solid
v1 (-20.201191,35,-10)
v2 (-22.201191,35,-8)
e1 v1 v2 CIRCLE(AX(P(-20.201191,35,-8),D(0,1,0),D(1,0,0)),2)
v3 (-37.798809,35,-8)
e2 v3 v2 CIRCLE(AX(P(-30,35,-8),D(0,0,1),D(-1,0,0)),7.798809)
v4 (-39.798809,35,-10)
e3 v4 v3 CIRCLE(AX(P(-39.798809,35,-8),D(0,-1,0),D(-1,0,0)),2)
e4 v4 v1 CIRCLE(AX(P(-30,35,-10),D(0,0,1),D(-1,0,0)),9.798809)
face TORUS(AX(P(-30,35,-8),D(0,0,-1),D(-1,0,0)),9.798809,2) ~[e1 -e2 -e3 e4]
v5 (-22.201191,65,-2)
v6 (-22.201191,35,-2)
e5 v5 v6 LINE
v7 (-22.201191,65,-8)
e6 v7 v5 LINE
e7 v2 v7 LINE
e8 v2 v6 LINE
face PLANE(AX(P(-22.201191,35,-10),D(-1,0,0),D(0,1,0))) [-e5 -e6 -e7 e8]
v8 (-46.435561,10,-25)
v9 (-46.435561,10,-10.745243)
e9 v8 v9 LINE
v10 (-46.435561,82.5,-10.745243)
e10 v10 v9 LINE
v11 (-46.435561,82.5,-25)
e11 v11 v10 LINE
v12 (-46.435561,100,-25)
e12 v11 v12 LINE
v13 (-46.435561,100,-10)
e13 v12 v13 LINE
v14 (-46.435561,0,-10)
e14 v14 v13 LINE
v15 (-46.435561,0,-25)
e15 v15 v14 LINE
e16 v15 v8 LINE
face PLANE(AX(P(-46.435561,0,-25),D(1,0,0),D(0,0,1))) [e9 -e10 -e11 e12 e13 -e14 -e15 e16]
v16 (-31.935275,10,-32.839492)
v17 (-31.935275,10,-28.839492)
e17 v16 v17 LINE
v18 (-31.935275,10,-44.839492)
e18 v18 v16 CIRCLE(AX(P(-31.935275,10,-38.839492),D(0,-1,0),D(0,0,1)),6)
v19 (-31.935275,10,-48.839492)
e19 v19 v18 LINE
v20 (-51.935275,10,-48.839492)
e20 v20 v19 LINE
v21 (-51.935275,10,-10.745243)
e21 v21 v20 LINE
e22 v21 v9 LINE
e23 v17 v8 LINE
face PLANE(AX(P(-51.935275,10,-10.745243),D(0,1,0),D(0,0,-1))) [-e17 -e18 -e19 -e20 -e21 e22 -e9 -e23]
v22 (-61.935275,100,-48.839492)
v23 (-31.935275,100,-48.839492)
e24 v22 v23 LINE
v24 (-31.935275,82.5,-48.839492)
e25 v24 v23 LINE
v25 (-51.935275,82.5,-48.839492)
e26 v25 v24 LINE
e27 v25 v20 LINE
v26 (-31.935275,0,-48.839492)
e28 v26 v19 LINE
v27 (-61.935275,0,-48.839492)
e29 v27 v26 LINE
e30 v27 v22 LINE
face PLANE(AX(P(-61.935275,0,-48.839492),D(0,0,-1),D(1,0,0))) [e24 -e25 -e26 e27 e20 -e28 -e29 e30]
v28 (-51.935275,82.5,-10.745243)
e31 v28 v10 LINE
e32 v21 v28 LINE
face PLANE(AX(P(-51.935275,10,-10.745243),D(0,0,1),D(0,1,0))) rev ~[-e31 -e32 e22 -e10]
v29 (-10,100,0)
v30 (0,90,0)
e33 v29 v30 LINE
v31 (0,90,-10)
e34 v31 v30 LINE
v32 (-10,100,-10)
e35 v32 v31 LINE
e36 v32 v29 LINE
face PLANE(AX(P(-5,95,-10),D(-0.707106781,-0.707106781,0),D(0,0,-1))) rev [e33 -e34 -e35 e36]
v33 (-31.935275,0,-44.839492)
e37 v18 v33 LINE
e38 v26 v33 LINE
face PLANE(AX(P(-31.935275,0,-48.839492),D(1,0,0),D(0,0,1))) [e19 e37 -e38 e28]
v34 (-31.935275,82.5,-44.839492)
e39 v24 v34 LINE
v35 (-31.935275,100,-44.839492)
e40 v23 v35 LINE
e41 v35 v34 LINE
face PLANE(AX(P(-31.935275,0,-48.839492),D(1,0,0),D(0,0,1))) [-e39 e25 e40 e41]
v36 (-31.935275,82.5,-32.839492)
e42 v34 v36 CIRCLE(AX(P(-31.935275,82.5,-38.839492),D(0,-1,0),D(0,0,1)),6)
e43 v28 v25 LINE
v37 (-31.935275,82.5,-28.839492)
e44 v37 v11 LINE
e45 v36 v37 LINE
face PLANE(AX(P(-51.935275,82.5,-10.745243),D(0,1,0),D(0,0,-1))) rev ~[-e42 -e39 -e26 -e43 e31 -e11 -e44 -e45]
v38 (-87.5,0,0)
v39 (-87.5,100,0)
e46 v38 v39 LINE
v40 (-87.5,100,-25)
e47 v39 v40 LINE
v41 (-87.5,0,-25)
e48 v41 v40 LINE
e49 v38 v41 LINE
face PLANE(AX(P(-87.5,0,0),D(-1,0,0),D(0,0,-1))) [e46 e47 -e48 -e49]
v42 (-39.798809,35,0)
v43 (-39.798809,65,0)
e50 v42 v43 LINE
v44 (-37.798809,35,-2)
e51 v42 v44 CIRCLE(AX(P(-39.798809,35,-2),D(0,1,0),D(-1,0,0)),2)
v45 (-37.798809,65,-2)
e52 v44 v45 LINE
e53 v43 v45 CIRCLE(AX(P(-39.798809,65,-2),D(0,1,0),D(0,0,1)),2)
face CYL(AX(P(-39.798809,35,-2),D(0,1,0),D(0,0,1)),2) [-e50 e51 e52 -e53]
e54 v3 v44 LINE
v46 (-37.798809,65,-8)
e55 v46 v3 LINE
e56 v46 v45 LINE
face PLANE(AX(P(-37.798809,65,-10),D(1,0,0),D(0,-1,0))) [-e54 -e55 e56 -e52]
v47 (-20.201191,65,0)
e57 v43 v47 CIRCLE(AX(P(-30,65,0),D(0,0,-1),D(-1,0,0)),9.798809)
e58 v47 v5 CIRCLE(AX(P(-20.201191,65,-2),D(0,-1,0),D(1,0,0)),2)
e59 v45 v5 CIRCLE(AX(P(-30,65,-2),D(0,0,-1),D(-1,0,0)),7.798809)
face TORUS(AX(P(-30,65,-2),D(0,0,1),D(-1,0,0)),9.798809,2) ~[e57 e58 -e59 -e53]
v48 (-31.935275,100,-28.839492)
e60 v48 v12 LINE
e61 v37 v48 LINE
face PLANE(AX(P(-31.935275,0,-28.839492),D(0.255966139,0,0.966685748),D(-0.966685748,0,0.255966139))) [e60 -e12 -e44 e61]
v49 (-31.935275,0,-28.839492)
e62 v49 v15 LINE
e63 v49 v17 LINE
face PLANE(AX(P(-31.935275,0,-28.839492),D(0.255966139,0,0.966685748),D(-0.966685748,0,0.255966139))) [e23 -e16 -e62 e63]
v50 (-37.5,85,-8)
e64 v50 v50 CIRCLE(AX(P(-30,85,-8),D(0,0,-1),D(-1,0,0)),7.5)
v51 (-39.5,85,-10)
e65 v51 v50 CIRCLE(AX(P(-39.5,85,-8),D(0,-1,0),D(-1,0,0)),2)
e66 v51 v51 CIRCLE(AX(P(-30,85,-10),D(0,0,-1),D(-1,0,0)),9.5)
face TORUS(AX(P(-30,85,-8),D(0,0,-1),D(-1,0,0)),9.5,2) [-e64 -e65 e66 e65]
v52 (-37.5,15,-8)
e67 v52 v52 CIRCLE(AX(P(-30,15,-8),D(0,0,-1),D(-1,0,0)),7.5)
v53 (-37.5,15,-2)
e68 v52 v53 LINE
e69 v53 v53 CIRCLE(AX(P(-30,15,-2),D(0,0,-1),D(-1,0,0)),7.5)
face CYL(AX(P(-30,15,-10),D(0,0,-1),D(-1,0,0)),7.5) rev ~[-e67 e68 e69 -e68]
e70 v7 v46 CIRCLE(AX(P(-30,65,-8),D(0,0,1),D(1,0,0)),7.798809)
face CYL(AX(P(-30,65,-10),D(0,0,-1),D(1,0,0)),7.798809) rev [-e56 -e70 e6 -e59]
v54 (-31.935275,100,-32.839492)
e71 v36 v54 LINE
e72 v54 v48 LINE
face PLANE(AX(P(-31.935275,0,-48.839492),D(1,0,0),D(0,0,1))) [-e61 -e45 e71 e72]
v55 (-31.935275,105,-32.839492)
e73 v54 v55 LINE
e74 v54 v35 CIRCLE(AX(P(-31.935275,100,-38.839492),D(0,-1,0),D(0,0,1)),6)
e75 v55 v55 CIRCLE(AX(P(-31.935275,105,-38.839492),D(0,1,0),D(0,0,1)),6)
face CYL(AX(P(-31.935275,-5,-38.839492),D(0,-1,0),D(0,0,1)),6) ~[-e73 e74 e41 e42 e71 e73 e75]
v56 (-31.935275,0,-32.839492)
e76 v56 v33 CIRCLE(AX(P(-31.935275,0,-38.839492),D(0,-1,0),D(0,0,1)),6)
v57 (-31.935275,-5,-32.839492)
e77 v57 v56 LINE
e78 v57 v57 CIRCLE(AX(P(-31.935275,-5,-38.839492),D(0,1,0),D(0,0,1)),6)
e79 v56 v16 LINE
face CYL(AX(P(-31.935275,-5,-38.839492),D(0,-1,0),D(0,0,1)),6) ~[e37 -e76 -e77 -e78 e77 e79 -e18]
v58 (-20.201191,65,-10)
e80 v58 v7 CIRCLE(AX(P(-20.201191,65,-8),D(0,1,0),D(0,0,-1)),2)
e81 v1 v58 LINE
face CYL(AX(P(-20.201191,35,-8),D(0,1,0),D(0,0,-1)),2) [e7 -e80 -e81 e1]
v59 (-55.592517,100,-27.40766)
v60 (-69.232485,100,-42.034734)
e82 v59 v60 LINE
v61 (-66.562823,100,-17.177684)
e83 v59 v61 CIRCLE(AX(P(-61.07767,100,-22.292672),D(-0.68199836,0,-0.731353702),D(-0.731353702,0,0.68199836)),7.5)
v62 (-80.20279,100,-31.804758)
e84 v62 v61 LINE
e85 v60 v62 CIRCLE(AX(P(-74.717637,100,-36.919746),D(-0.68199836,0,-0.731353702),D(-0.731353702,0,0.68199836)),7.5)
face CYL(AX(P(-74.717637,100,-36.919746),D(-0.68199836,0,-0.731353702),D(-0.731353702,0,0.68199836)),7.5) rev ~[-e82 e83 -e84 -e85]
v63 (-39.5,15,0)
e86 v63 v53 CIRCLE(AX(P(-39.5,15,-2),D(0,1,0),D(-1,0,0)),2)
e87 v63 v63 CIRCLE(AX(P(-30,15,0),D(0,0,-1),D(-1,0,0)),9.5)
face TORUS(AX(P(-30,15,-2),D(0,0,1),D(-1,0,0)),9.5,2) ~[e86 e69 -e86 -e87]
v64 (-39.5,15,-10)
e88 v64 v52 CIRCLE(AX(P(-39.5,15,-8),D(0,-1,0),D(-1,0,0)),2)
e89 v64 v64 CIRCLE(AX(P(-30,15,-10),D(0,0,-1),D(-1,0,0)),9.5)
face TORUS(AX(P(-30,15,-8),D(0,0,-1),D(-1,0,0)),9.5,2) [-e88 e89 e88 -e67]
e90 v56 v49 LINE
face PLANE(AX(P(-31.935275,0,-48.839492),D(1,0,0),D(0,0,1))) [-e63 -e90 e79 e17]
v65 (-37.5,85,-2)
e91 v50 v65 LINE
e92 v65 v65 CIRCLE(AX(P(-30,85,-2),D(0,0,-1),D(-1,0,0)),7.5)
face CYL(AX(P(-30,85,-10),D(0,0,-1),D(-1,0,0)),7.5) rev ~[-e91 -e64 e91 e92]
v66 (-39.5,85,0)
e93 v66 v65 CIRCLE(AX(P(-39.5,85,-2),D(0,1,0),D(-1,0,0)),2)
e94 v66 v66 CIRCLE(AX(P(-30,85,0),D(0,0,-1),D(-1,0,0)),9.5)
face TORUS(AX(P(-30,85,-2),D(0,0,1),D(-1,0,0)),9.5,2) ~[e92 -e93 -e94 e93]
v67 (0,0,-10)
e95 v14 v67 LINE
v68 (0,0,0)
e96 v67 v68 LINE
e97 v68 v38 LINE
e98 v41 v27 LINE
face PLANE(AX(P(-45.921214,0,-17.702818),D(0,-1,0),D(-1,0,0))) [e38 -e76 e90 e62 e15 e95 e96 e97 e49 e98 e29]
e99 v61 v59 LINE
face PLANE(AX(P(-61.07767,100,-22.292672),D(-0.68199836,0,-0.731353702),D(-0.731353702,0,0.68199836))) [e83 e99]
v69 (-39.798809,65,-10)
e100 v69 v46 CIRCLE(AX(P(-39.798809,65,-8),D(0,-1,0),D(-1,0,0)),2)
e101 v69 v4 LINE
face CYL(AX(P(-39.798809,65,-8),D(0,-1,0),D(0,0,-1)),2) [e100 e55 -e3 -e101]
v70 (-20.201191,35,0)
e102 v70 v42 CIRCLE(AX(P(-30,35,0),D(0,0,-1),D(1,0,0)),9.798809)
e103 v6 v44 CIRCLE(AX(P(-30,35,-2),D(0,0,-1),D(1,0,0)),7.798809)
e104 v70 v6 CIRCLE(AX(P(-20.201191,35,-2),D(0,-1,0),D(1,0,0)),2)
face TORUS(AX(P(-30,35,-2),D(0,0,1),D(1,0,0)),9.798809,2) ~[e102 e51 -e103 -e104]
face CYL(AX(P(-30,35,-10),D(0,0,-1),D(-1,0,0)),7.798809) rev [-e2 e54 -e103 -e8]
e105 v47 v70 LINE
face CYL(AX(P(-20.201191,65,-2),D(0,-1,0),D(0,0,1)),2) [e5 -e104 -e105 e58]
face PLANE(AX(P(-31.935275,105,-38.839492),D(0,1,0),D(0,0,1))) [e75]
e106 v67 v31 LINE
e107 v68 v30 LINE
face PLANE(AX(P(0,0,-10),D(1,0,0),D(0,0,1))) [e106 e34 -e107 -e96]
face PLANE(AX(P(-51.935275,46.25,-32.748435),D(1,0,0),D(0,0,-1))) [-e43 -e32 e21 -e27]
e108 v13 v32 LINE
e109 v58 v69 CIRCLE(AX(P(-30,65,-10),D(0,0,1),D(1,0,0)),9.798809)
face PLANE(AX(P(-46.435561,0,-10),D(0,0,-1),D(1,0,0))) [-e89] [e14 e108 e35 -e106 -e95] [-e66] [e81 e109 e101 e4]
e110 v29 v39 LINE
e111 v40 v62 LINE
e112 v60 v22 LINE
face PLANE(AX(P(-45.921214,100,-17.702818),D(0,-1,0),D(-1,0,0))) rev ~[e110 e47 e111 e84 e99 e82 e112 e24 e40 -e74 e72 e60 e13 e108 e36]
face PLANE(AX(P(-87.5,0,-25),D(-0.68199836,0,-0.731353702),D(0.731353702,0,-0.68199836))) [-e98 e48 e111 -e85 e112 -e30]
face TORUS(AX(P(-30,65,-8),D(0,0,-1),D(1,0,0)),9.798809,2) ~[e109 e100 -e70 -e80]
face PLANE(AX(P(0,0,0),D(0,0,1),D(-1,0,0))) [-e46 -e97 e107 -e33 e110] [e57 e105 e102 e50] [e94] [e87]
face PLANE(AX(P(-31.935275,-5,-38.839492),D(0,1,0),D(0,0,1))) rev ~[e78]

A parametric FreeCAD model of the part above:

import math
import FreeCAD as App
import Part
import Sketcher

V = App.Vector
Q = App.Units.Quantity


def edges_at(feature, points):
    """Names of the edges that pass closest to the given points."""
    edges = feature.Shape.Edges
    near = lambda p: min(range(len(edges)), key=lambda i: edges[i].distToShape(Part.Vertex(*p))[0])
    return sorted({f"Edge{near(p) + 1}" for p in points})

doc = App.newDocument("Part")
body = doc.addObject("PartDesign::Body", "Body")

sketch1 = body.newObject("Sketcher::SketchObject", "Sketch")
sketch1.AttachmentSupport = (doc.getObject("XZ_Plane"), [""])
sketch1.MapMode = "FlatFace"
sketch1.addGeometry(Part.LineSegment(V(-88, 0, 0), V(0, 0, 0)), False)
sketch1.addGeometry(Part.LineSegment(V(0, 0, 0), V(0, -10, 0)), False)
sketch1.addGeometry(Part.LineSegment(V(0, -10, 0), V(-46, -10, 0)), False)
sketch1.addGeometry(Part.LineSegment(V(-46, -10, 0), V(-46, -25, 0)), False)
sketch1.addGeometry(Part.LineSegment(V(-46, -25, 0), V(-32, -29, 0)), False)
sketch1.addGeometry(Part.LineSegment(V(-32, -29, 0), V(-32, -49, 0)), False)
sketch1.addGeometry(Part.LineSegment(V(-32, -49, 0), V(-62, -49, 0)), False)
sketch1.addGeometry(Part.LineSegment(V(-62, -49, 0), V(-88, -25, 0)), False)
sketch1.addGeometry(Part.LineSegment(V(-88, -25, 0), V(-88, 0, 0)), False)
sketch1.addConstraint(Sketcher.Constraint("Coincident", 0, 2, 1, 1))
sketch1.addConstraint(Sketcher.Constraint("Coincident", 1, 2, 2, 1))
sketch1.addConstraint(Sketcher.Constraint("Coincident", 2, 2, 3, 1))
sketch1.addConstraint(Sketcher.Constraint("Coincident", 3, 2, 4, 1))
sketch1.addConstraint(Sketcher.Constraint("Coincident", 4, 2, 5, 1))
sketch1.addConstraint(Sketcher.Constraint("Coincident", 5, 2, 6, 1))
sketch1.addConstraint(Sketcher.Constraint("Coincident", 6, 2, 7, 1))
sketch1.addConstraint(Sketcher.Constraint("Coincident", 7, 2, 8, 1))
sketch1.addConstraint(Sketcher.Constraint("Coincident", 8, 2, 0, 1))
sketch1.addConstraint(Sketcher.Constraint("Horizontal", 0))
sketch1.addConstraint(Sketcher.Constraint("Vertical", 1))
sketch1.addConstraint(Sketcher.Constraint("Horizontal", 2))
sketch1.addConstraint(Sketcher.Constraint("Vertical", 3))
sketch1.addConstraint(Sketcher.Constraint("Vertical", 5))
sketch1.addConstraint(Sketcher.Constraint("Horizontal", 6))
sketch1.addConstraint(Sketcher.Constraint("Vertical", 8))
sketch1.addConstraint(Sketcher.Constraint("Coincident", 0, 2, -1, 1))
sketch1.addConstraint(Sketcher.Constraint("Horizontal", 3, 2, 7, 2))
sketch1.addConstraint(Sketcher.Constraint("DistanceX", 6, 2, 6, 1, Q("30 mm")))
sketch1.addConstraint(Sketcher.Constraint("DistanceY", 1, 2, 1, 1, Q("10 mm")))
sketch1.addConstraint(Sketcher.Constraint("DistanceY", 3, 2, 3, 1, Q("15 mm")))
sketch1.addConstraint(Sketcher.Constraint("DistanceY", 5, 2, 5, 1, Q("20 mm")))
sketch1.addConstraint(Sketcher.Constraint("Angle", 7, Q("137 deg")))
sketch1.addConstraint(Sketcher.Constraint("Distance", 4, Q("15 mm")))
sketch1.addConstraint(Sketcher.Constraint("DistanceX", 0, 1, 0, 2, Q("87.5 mm")))
sketch1.addConstraint(Sketcher.Constraint("DistanceX", 2, 2, 2, 1, Q("46.435561 mm")))
pad1 = body.newObject("PartDesign::Pad", "Pad")
pad1.Profile = sketch1
pad1.Length = 100
pad1.Reversed = True

sketch2 = body.newObject("Sketcher::SketchObject", "Sketch001")
sketch2.AttachmentSupport = (doc.getObject("XZ_Plane"), [""])
sketch2.MapMode = "FlatFace"
sketch2.AttachmentOffset = App.Placement(V(0, 0, -100), App.Rotation())
sketch2.addGeometry(Part.Circle(V(-32, -39, 0), V(0, 0, 1), 6), False)
sketch2.addConstraint(Sketcher.Constraint("Diameter", 0, Q("12 mm")))
sketch2.addConstraint(Sketcher.Constraint("DistanceX", 0, 3, -1, 1, Q("31.935275 mm")))
sketch2.addConstraint(Sketcher.Constraint("DistanceY", 0, 3, -1, 1, Q("38.839492 mm")))
pad2 = body.newObject("PartDesign::Pad", "Pad001")
pad2.Profile = sketch2
pad2.Type = "TwoLengths"
pad2.Length = 5
pad2.Length2 = 105
pad2.Reversed = True

sketch3 = body.newObject("Sketcher::SketchObject", "Sketch002")
sketch3.AttachmentSupport = (doc.getObject("YZ_Plane"), [""])
sketch3.MapMode = "FlatFace"
sketch3.AttachmentOffset = App.Placement(V(0, 0, -31.935275), App.Rotation())
sketch3.addGeometry(Part.LineSegment(V(82, -11, 0), V(10, -11, 0)), False)
sketch3.addGeometry(Part.LineSegment(V(10, -11, 0), V(10, -55, 0)), False)
sketch3.addGeometry(Part.LineSegment(V(10, -55, 0), V(82, -55, 0)), False)
sketch3.addGeometry(Part.LineSegment(V(82, -55, 0), V(82, -11, 0)), False)
sketch3.addConstraint(Sketcher.Constraint("Coincident", 0, 2, 1, 1))
sketch3.addConstraint(Sketcher.Constraint("Coincident", 1, 2, 2, 1))
sketch3.addConstraint(Sketcher.Constraint("Coincident", 2, 2, 3, 1))
sketch3.addConstraint(Sketcher.Constraint("Coincident", 3, 2, 0, 1))
sketch3.addConstraint(Sketcher.Constraint("Horizontal", 0))
sketch3.addConstraint(Sketcher.Constraint("Vertical", 1))
sketch3.addConstraint(Sketcher.Constraint("Horizontal", 2))
sketch3.addConstraint(Sketcher.Constraint("Vertical", 3))
sketch3.addConstraint(Sketcher.Constraint("DistanceX", 0, 2, 0, 1, Q("72.5 mm")))
sketch3.addConstraint(Sketcher.Constraint("DistanceX", -1, 1, 0, 2, Q("10 mm")))
sketch3.addConstraint(Sketcher.Constraint("DistanceY", 1, 2, 1, 1, Q("44.006383 mm")))
sketch3.addConstraint(Sketcher.Constraint("DistanceY", 0, 2, -1, 1, Q("10.745243 mm")))
pocket1 = body.newObject("PartDesign::Pocket", "Pocket")
pocket1.Profile = sketch3
pocket1.Type = "TwoLengths"
pocket1.Length = 129.443508
pocket1.Length2 = 20
pocket1.Reversed = True

sketch4 = body.newObject("Sketcher::SketchObject", "Sketch003")
sketch4.AttachmentSupport = (doc.getObject("XY_Plane"), [""])
sketch4.MapMode = "FlatFace"
sketch4.AttachmentOffset = App.Placement(V(0, 0, -10), App.Rotation())
sketch4.addGeometry(Part.Circle(V(-30, 15, 0), V(0, 0, 1), 8), False)
sketch4.addGeometry(Part.Circle(V(-30, 85, 0), V(0, 0, 1), 8), False)
sketch4.addGeometry(Part.LineSegment(V(-22, 65, 0), V(-22, 35, 0)), False)
sketch4.addGeometry(Part.ArcOfCircle(Part.Circle(V(-30, 35, 0), V(0, 0, 1), 8), math.radians(180), math.radians(360)), False)
sketch4.addGeometry(Part.LineSegment(V(-38, 35, 0), V(-38, 65, 0)), False)
sketch4.addGeometry(Part.ArcOfCircle(Part.Circle(V(-30, 65, 0), V(0, 0, 1), 8), math.radians(0), math.radians(180)), False)
sketch4.addConstraint(Sketcher.Constraint("Tangent", 2, 2, 3, 2))
sketch4.addConstraint(Sketcher.Constraint("Tangent", 3, 1, 4, 1))
sketch4.addConstraint(Sketcher.Constraint("Tangent", 4, 2, 5, 2))
sketch4.addConstraint(Sketcher.Constraint("Tangent", 5, 1, 2, 1))
sketch4.addConstraint(Sketcher.Constraint("Vertical", 2))
sketch4.addConstraint(Sketcher.Constraint("Vertical", 4))
sketch4.addConstraint(Sketcher.Constraint("Equal", 0, 1))
sketch4.addConstraint(Sketcher.Constraint("Vertical", 0, 3, 1, 3))
sketch4.addConstraint(Sketcher.Constraint("Vertical", 1, 3, 3, 3))
sketch4.addConstraint(Sketcher.Constraint("Diameter", 0, Q("15 mm")))
sketch4.addConstraint(Sketcher.Constraint("DistanceY", 2, 2, 2, 1, Q("30 mm")))
sketch4.addConstraint(Sketcher.Constraint("DistanceX", 0, 3, -1, 1, Q("30 mm")))
sketch4.addConstraint(Sketcher.Constraint("DistanceY", -1, 1, 0, 3, Q("15 mm")))
sketch4.addConstraint(Sketcher.Constraint("DistanceY", -1, 1, 1, 3, Q("85 mm")))
sketch4.addConstraint(Sketcher.Constraint("DistanceY", -1, 1, 3, 3, Q("35 mm")))
sketch4.addConstraint(Sketcher.Constraint("Radius", 3, Q("7.798809 mm")))
pocket2 = body.newObject("PartDesign::Pocket", "Pocket001")
pocket2.Profile = sketch4
pocket2.Type = "ThroughAll"
pocket2.Reversed = True
doc.recompute()

fillet = body.newObject("PartDesign::Fillet", "Fillet")
fillet.Base = (pocket2, edges_at(pocket2, [
    (-22.5, 15, 0),
    (-22.5, 15, -10),
    (-22.5, 85, 0),
    (-22.5, 85, -10),
    (-30, 27.201, 0),
    (-22.201, 50, 0),
    (-30, 72.799, 0),
    (-37.799, 50, 0),
    (-30, 27.201, -10),
    (-37.799, 50, -10),
    (-30, 72.799, -10),
    (-22.201, 50, -10),
]))
fillet.Radius = 2
doc.recompute()

chamfer = body.newObject("PartDesign::Chamfer", "Chamfer")
chamfer.Base = (fillet, edges_at(fillet, [(0, 100, -5)]))
chamfer.Size = 10

sketch5 = body.newObject("Sketcher::SketchObject", "Sketch004")
sketch5.Placement = App.Placement(V(-53.167705, 0, -57.015383), App.Rotation(V(-0.731353702, 0, 0.68199836), V(0, 1, 0), V(-0.68199836, 0, -0.731353702), "ZXY"))
sketch5.addGeometry(Part.Circle(V(29, 100, 0), V(0, 0, 1), 8), False)
sketch5.addConstraint(Sketcher.Constraint("Diameter", 0, Q("15 mm")))
sketch5.addConstraint(Sketcher.Constraint("DistanceY", -1, 1, 0, 3, Q("100 mm")))
sketch5.addConstraint(Sketcher.Constraint("DistanceX", -1, 1, 0, 3, Q("29.465814 mm")))
pocket3 = body.newObject("PartDesign::Pocket", "Pocket002")
pocket3.Profile = sketch5
pocket3.Length = 20

doc.recompute()
